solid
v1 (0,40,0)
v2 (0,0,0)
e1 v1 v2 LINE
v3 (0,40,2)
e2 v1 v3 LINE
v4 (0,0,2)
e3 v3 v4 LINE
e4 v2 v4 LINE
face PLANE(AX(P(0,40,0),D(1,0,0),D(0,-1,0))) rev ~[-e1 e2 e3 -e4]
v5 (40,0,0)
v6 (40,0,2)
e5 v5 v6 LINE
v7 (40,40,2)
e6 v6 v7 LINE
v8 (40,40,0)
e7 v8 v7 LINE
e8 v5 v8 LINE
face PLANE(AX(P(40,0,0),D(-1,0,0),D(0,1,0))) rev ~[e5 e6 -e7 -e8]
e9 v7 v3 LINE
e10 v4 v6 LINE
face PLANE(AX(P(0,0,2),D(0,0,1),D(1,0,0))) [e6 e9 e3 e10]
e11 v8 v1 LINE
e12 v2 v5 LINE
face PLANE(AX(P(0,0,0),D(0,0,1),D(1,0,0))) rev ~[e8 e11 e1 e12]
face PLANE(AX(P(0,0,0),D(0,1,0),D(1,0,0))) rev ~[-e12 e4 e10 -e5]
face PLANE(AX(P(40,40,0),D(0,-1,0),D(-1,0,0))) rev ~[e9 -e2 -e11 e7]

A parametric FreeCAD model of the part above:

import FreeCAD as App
import Part
import Sketcher
from FreeCAD import Vector
Q = App.Units.Quantity


def add_polygon(sketch, points):
    """Adds a closed chain of lines whose ends are joined by coincident constraints."""
    first, n = sketch.GeometryCount, len(points)
    for a, b in zip(points, points[1:] + points[:1]):
        sketch.addGeometry(Part.LineSegment(App.Vector(*a, 0), App.Vector(*b, 0)), False)
    for i in range(n):
        sketch.addConstraint(Sketcher.Constraint("Coincident", first + i, 2, first + (i + 1) % n, 1))

doc = App.newDocument("Part")
body = doc.addObject("PartDesign::Body", "Body")

sketch1 = doc.addObject("Sketcher::SketchObject", "Sketch")
body.addObject(sketch1)
sketch1.AttachmentSupport = (doc.XY_Plane, [""])
sketch1.MapMode = "FlatFace"
add_polygon(sketch1, [(0, 40), (0, 0), (40, 0), (40, 40)])
sketch1.addConstraint([
    Sketcher.Constraint("Vertical", 0),
    Sketcher.Constraint("Horizontal", 1),
    Sketcher.Constraint("Vertical", 2),
    Sketcher.Constraint("Horizontal", 3),
    Sketcher.Constraint("Coincident", 0, 2, -1, 1),
    Sketcher.Constraint("Equal", 3, 0),
    Sketcher.Constraint("DistanceX", 1, 1, 1, 2, Q("40 mm")),
])
pad1 = doc.addObject("PartDesign::Pad", "Pad")
body.addObject(pad1)
pad1.Profile = sketch1
pad1.Length = 2

doc.recompute()
